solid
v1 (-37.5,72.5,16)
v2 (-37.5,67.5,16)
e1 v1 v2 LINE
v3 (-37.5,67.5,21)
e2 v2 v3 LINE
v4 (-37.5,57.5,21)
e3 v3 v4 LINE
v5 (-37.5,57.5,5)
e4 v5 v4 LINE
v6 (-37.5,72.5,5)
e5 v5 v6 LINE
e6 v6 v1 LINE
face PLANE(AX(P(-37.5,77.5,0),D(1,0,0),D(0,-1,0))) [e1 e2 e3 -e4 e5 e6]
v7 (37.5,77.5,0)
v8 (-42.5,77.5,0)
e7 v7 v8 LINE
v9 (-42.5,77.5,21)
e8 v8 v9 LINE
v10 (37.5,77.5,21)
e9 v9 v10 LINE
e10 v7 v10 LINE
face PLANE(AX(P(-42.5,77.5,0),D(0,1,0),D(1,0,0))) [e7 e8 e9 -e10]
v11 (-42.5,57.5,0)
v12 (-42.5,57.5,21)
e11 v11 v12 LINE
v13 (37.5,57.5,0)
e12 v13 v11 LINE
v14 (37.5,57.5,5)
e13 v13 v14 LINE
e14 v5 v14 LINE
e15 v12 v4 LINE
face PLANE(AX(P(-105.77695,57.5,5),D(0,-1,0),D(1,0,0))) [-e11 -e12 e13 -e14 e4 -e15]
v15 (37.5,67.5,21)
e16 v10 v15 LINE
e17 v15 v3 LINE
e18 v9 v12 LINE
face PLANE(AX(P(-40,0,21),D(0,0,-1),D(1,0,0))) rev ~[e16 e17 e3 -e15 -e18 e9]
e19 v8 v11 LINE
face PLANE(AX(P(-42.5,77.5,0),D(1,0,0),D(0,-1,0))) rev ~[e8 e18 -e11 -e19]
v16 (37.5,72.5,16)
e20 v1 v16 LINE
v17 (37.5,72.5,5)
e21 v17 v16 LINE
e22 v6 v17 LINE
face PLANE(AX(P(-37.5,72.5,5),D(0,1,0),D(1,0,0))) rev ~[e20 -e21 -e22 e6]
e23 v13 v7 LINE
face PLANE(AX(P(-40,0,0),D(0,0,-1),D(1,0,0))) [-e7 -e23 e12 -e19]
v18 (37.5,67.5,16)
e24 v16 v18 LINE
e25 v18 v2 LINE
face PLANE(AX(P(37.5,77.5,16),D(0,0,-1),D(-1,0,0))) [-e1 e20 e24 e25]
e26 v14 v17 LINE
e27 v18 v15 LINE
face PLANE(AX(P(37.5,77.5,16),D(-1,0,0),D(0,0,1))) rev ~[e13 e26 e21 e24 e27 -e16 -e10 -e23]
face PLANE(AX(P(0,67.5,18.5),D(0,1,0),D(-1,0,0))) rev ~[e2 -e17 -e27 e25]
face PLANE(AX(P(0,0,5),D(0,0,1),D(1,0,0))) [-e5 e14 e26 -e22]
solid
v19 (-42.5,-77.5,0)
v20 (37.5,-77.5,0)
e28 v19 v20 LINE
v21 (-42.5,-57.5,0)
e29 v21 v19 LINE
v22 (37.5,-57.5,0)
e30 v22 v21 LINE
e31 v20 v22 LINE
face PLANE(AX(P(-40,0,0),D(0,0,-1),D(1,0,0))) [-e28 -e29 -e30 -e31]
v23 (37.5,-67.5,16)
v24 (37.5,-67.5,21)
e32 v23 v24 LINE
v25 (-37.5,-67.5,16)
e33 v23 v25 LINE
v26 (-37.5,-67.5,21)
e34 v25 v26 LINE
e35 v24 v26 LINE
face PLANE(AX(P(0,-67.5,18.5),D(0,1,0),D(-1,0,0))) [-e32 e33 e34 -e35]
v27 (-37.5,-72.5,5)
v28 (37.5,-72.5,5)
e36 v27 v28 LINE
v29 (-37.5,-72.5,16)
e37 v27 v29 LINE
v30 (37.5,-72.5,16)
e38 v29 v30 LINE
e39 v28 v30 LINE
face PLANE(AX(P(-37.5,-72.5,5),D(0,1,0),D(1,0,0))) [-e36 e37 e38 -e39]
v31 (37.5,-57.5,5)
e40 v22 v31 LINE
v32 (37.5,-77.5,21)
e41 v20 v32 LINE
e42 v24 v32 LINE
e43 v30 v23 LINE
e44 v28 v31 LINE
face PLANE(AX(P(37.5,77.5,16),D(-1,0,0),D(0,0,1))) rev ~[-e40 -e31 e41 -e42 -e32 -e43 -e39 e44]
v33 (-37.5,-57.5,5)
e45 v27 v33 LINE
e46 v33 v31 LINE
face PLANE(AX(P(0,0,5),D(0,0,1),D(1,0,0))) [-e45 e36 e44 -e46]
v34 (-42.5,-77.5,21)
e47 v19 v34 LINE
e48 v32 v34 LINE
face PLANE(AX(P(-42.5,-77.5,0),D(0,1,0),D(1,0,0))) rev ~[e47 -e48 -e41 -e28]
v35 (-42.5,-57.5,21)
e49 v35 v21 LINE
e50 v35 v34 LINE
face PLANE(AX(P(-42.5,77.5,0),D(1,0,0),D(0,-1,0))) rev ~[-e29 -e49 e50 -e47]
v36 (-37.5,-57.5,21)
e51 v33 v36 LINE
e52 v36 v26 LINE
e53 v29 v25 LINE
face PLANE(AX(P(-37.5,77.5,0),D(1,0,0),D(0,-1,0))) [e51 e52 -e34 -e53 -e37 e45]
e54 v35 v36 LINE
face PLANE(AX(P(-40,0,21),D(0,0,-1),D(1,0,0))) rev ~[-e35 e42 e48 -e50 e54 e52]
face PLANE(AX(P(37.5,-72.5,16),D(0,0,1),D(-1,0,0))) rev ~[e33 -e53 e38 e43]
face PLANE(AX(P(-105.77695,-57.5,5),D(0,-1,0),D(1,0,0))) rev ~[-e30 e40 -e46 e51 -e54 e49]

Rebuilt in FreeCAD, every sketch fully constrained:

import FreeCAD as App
import Part
import Sketcher

V = App.Vector
Q = App.Units.Quantity

doc = App.newDocument("Part")
params = doc.addObject("Spreadsheet::Sheet", "Params")
for row, (alias, value) in enumerate([
    ("sketch1_width", "75 mm"),
    ("sketch1_height", "155 mm"),
    ("pad1_length", "5 mm"),
    ("sketch2_width", "75 mm"),
    ("sketch2_height", "5 mm"),
    ("pad2_length", "11 mm"),
    ("sketch3_width", "75 mm"),
    ("sketch3_height", "5 mm"),
    ("pad3_length", "5 mm"),
    ("sketch4_width", "75 mm"),
    ("sketch4_height", "5 mm"),
    ("pad4_length", "5 mm"),
    ("sketch5_width", "75 mm"),
    ("sketch5_height", "5 mm"),
    ("pad5_length", "11 mm"),
    ("sketch6_width", "75 mm"),
    ("sketch6_height", "5 mm"),
    ("pad6_length", "10 mm"),
    ("sketch7_width", "5 mm"),
    ("sketch7_height", "155 mm"),
    ("pad7_length", "21 mm"),
    ("sketch8_height", "115 mm"),
    ("sketch9_height", "115 mm"),
    ("pocket2_length", "25 mm"),
], start=1):
    params.set(f"A{row}", alias)
    params.set(f"B{row}", "=" + value)
    params.setAlias(f"B{row}", alias)

body = doc.addObject("PartDesign::Body", "Body")

sketch1 = body.newObject("Sketcher::SketchObject", "Sketch")
sketch1.AttachmentSupport = (doc.getObject("XY_Plane"), [""])
sketch1.MapMode = "FlatFace"
sketch1.addGeometry(Part.LineSegment(V(-38, 78, 0), V(-38, -78, 0)), False)
sketch1.addGeometry(Part.LineSegment(V(-38, -78, 0), V(38, -78, 0)), False)
sketch1.addGeometry(Part.LineSegment(V(38, -78, 0), V(38, 78, 0)), False)
sketch1.addGeometry(Part.LineSegment(V(38, 78, 0), V(-38, 78, 0)), False)
sketch1.addConstraint(Sketcher.Constraint("Coincident", 0, 2, 1, 1))
sketch1.addConstraint(Sketcher.Constraint("Coincident", 1, 2, 2, 1))
sketch1.addConstraint(Sketcher.Constraint("Coincident", 2, 2, 3, 1))
sketch1.addConstraint(Sketcher.Constraint("Coincident", 3, 2, 0, 1))
sketch1.addConstraint(Sketcher.Constraint("Vertical", 0))
sketch1.addConstraint(Sketcher.Constraint("Horizontal", 1))
sketch1.addConstraint(Sketcher.Constraint("Vertical", 2))
sketch1.addConstraint(Sketcher.Constraint("Horizontal", 3))
sketch1.addConstraint(Sketcher.Constraint("Symmetric", 0, 2, 2, 2, -1, 1))
sketch1.addConstraint(Sketcher.Constraint("DistanceX", 1, 1, 1, 2, Q("75 mm")))
sketch1.addConstraint(Sketcher.Constraint("DistanceY", 0, 2, 0, 1, Q("155 mm")))
sketch1.setExpression("Constraints[9]", "Params.sketch1_width")
sketch1.setExpression("Constraints[10]", "Params.sketch1_height")
pad1 = body.newObject("PartDesign::Pad", "Pad")
pad1.Profile = sketch1
pad1.setExpression("Length", "Params.pad1_length")

sketch2 = body.newObject("Sketcher::SketchObject", "Sketch001")
sketch2.AttachmentSupport = (doc.getObject("XY_Plane"), [""])
sketch2.MapMode = "FlatFace"
sketch2.AttachmentOffset = App.Placement(V(0, 0, 5), App.Rotation())
sketch2.addGeometry(Part.LineSegment(V(-38, -72, 0), V(-38, -78, 0)), False)
sketch2.addGeometry(Part.LineSegment(V(-38, -78, 0), V(38, -78, 0)), False)
sketch2.addGeometry(Part.LineSegment(V(38, -78, 0), V(38, -72, 0)), False)
sketch2.addGeometry(Part.LineSegment(V(38, -72, 0), V(-38, -72, 0)), False)
sketch2.addConstraint(Sketcher.Constraint("Coincident", 0, 2, 1, 1))
sketch2.addConstraint(Sketcher.Constraint("Coincident", 1, 2, 2, 1))
sketch2.addConstraint(Sketcher.Constraint("Coincident", 2, 2, 3, 1))
sketch2.addConstraint(Sketcher.Constraint("Coincident", 3, 2, 0, 1))
sketch2.addConstraint(Sketcher.Constraint("Vertical", 0))
sketch2.addConstraint(Sketcher.Constraint("Horizontal", 1))
sketch2.addConstraint(Sketcher.Constraint("Vertical", 2))
sketch2.addConstraint(Sketcher.Constraint("Horizontal", 3))
sketch2.addConstraint(Sketcher.Constraint("DistanceX", 1, 1, 1, 2, Q("75 mm")))
sketch2.addConstraint(Sketcher.Constraint("DistanceY", 0, 2, 0, 1, Q("5 mm")))
sketch2.addConstraint(Sketcher.Constraint("DistanceX", 0, 2, -1, 1, Q("37.5 mm")))
sketch2.addConstraint(Sketcher.Constraint("DistanceY", 0, 2, -1, 1, Q("77.5 mm")))
sketch2.setExpression("Constraints[8]", "Params.sketch2_width")
sketch2.setExpression("Constraints[9]", "Params.sketch2_height")
pad2 = body.newObject("PartDesign::Pad", "Pad001")
pad2.Profile = sketch2
pad2.setExpression("Length", "Params.pad2_length")
body2 = doc.addObject("PartDesign::Body", "Body001")

sketch3 = body2.newObject("Sketcher::SketchObject", "Sketch002")
sketch3.AttachmentSupport = (doc.getObject("XZ_Plane001"), [""])
sketch3.MapMode = "FlatFace"
sketch3.AttachmentOffset = App.Placement(V(0, 0, 72.5), App.Rotation())
sketch3.addGeometry(Part.LineSegment(V(38, 21, 0), V(38, 16, 0)), False)
sketch3.addGeometry(Part.LineSegment(V(38, 16, 0), V(-38, 16, 0)), False)
sketch3.addGeometry(Part.LineSegment(V(-38, 16, 0), V(-38, 21, 0)), False)
sketch3.addGeometry(Part.LineSegment(V(-38, 21, 0), V(38, 21, 0)), False)
sketch3.addConstraint(Sketcher.Constraint("Coincident", 0, 2, 1, 1))
sketch3.addConstraint(Sketcher.Constraint("Coincident", 1, 2, 2, 1))
sketch3.addConstraint(Sketcher.Constraint("Coincident", 2, 2, 3, 1))
sketch3.addConstraint(Sketcher.Constraint("Coincident", 3, 2, 0, 1))
sketch3.addConstraint(Sketcher.Constraint("Vertical", 0))
sketch3.addConstraint(Sketcher.Constraint("Horizontal", 1))
sketch3.addConstraint(Sketcher.Constraint("Vertical", 2))
sketch3.addConstraint(Sketcher.Constraint("Horizontal", 3))
sketch3.addConstraint(Sketcher.Constraint("DistanceX", 1, 2, 1, 1, Q("75 mm")))
sketch3.addConstraint(Sketcher.Constraint("DistanceY", 0, 2, 0, 1, Q("5 mm")))
sketch3.addConstraint(Sketcher.Constraint("DistanceY", -1, 1, 0, 2, Q("16 mm")))
sketch3.addConstraint(Sketcher.Constraint("DistanceX", -1, 1, 0, 2, Q("37.5 mm")))
sketch3.setExpression("Constraints[8]", "Params.sketch3_width")
sketch3.setExpression("Constraints[9]", "Params.sketch3_height")
pad3 = body2.newObject("PartDesign::Pad", "Pad002")
pad3.Profile = sketch3
pad3.setExpression("Length", "Params.pad3_length")
pad3.Reversed = True
body3 = doc.addObject("PartDesign::Body", "Body002")
body3.AllowCompound = True

sketch4 = body3.newObject("Sketcher::SketchObject", "Sketch003")
sketch4.AttachmentSupport = (doc.getObject("XZ_Plane002"), [""])
sketch4.MapMode = "FlatFace"
sketch4.AttachmentOffset = App.Placement(V(0, 0, 72.5), App.Rotation())
sketch4.addGeometry(Part.LineSegment(V(38, 16, 0), V(38, 21, 0)), False)
sketch4.addGeometry(Part.LineSegment(V(38, 21, 0), V(-38, 21, 0)), False)
sketch4.addGeometry(Part.LineSegment(V(-38, 21, 0), V(-38, 16, 0)), False)
sketch4.addGeometry(Part.LineSegment(V(-38, 16, 0), V(38, 16, 0)), False)
sketch4.addConstraint(Sketcher.Constraint("Coincident", 0, 2, 1, 1))
sketch4.addConstraint(Sketcher.Constraint("Coincident", 1, 2, 2, 1))
sketch4.addConstraint(Sketcher.Constraint("Coincident", 2, 2, 3, 1))
sketch4.addConstraint(Sketcher.Constraint("Coincident", 3, 2, 0, 1))
sketch4.addConstraint(Sketcher.Constraint("Vertical", 0))
sketch4.addConstraint(Sketcher.Constraint("Horizontal", 1))
sketch4.addConstraint(Sketcher.Constraint("Vertical", 2))
sketch4.addConstraint(Sketcher.Constraint("Horizontal", 3))
sketch4.addConstraint(Sketcher.Constraint("DistanceX", 1, 2, 1, 1, Q("75 mm")))
sketch4.addConstraint(Sketcher.Constraint("DistanceY", 0, 1, 0, 2, Q("5 mm")))
sketch4.addConstraint(Sketcher.Constraint("DistanceY", -1, 1, 0, 2, Q("21 mm")))
sketch4.addConstraint(Sketcher.Constraint("DistanceX", -1, 1, 0, 2, Q("37.5 mm")))
sketch4.setExpression("Constraints[8]", "Params.sketch4_width")
sketch4.setExpression("Constraints[9]", "Params.sketch4_height")
pad4 = body3.newObject("PartDesign::Pad", "Pad003")
pad4.Profile = sketch4
pad4.setExpression("Length", "Params.pad4_length")
doc.recompute()

boolean = body3.newObject("PartDesign::Boolean", "Boolean")
boolean.Type = "Fuse"
boolean.addObjects([body2])
doc.recompute()

boolean2 = body3.newObject("PartDesign::Boolean", "Boolean001")
boolean2.Type = "Fuse"
boolean2.addObjects([body])

sketch5 = body3.newObject("Sketcher::SketchObject", "Sketch004")
sketch5.AttachmentSupport = (doc.getObject("XY_Plane002"), [""])
sketch5.MapMode = "FlatFace"
sketch5.AttachmentOffset = App.Placement(V(0, 0, 5), App.Rotation())
sketch5.addGeometry(Part.LineSegment(V(-38, 78, 0), V(-38, 72, 0)), False)
sketch5.addGeometry(Part.LineSegment(V(-38, 72, 0), V(38, 72, 0)), False)
sketch5.addGeometry(Part.LineSegment(V(38, 72, 0), V(38, 78, 0)), False)
sketch5.addGeometry(Part.LineSegment(V(38, 78, 0), V(-38, 78, 0)), False)
sketch5.addConstraint(Sketcher.Constraint("Coincident", 0, 2, 1, 1))
sketch5.addConstraint(Sketcher.Constraint("Coincident", 1, 2, 2, 1))
sketch5.addConstraint(Sketcher.Constraint("Coincident", 2, 2, 3, 1))
sketch5.addConstraint(Sketcher.Constraint("Coincident", 3, 2, 0, 1))
sketch5.addConstraint(Sketcher.Constraint("Vertical", 0))
sketch5.addConstraint(Sketcher.Constraint("Horizontal", 1))
sketch5.addConstraint(Sketcher.Constraint("Vertical", 2))
sketch5.addConstraint(Sketcher.Constraint("Horizontal", 3))
sketch5.addConstraint(Sketcher.Constraint("DistanceX", 1, 1, 1, 2, Q("75 mm")))
sketch5.addConstraint(Sketcher.Constraint("DistanceY", 0, 2, 0, 1, Q("5 mm")))
sketch5.addConstraint(Sketcher.Constraint("DistanceX", 0, 2, -1, 1, Q("37.5 mm")))
sketch5.addConstraint(Sketcher.Constraint("DistanceY", -1, 1, 0, 2, Q("72.5 mm")))
sketch5.setExpression("Constraints[8]", "Params.sketch5_width")
sketch5.setExpression("Constraints[9]", "Params.sketch5_height")
pad5 = body3.newObject("PartDesign::Pad", "Pad004")
pad5.Profile = sketch5
pad5.setExpression("Length", "Params.pad5_length")

sketch6 = body3.newObject("Sketcher::SketchObject", "Sketch005")
sketch6.AttachmentSupport = (doc.getObject("XZ_Plane002"), [""])
sketch6.MapMode = "FlatFace"
sketch6.AttachmentOffset = App.Placement(V(0, 0, -77.5), App.Rotation())
sketch6.addGeometry(Part.LineSegment(V(38, 21, 0), V(38, 16, 0)), False)
sketch6.addGeometry(Part.LineSegment(V(38, 16, 0), V(-38, 16, 0)), False)
sketch6.addGeometry(Part.LineSegment(V(-38, 16, 0), V(-38, 21, 0)), False)
sketch6.addGeometry(Part.LineSegment(V(-38, 21, 0), V(38, 21, 0)), False)
sketch6.addConstraint(Sketcher.Constraint("Coincident", 0, 2, 1, 1))
sketch6.addConstraint(Sketcher.Constraint("Coincident", 1, 2, 2, 1))
sketch6.addConstraint(Sketcher.Constraint("Coincident", 2, 2, 3, 1))
sketch6.addConstraint(Sketcher.Constraint("Coincident", 3, 2, 0, 1))
sketch6.addConstraint(Sketcher.Constraint("Vertical", 0))
sketch6.addConstraint(Sketcher.Constraint("Horizontal", 1))
sketch6.addConstraint(Sketcher.Constraint("Vertical", 2))
sketch6.addConstraint(Sketcher.Constraint("Horizontal", 3))
sketch6.addConstraint(Sketcher.Constraint("DistanceX", 1, 2, 1, 1, Q("75 mm")))
sketch6.addConstraint(Sketcher.Constraint("DistanceY", 0, 2, 0, 1, Q("5 mm")))
sketch6.addConstraint(Sketcher.Constraint("DistanceY", -1, 1, 0, 2, Q("16 mm")))
sketch6.addConstraint(Sketcher.Constraint("DistanceX", -1, 1, 0, 2, Q("37.5 mm")))
sketch6.setExpression("Constraints[8]", "Params.sketch6_width")
sketch6.setExpression("Constraints[9]", "Params.sketch6_height")
pad6 = body3.newObject("PartDesign::Pad", "Pad005")
pad6.Profile = sketch6
pad6.setExpression("Length", "Params.pad6_length")

sketch7 = body3.newObject("Sketcher::SketchObject", "Sketch006")
sketch7.AttachmentSupport = (doc.getObject("XY_Plane002"), [""])
sketch7.MapMode = "FlatFace"
sketch7.addGeometry(Part.LineSegment(V(-42, -78, 0), V(-42, 78, 0)), False)
sketch7.addGeometry(Part.LineSegment(V(-42, 78, 0), V(-38, 78, 0)), False)
sketch7.addGeometry(Part.LineSegment(V(-38, 78, 0), V(-38, -78, 0)), False)
sketch7.addGeometry(Part.LineSegment(V(-38, -78, 0), V(-42, -78, 0)), False)
sketch7.addConstraint(Sketcher.Constraint("Coincident", 0, 2, 1, 1))
sketch7.addConstraint(Sketcher.Constraint("Coincident", 1, 2, 2, 1))
sketch7.addConstraint(Sketcher.Constraint("Coincident", 2, 2, 3, 1))
sketch7.addConstraint(Sketcher.Constraint("Coincident", 3, 2, 0, 1))
sketch7.addConstraint(Sketcher.Constraint("Vertical", 0))
sketch7.addConstraint(Sketcher.Constraint("Horizontal", 1))
sketch7.addConstraint(Sketcher.Constraint("Vertical", 2))
sketch7.addConstraint(Sketcher.Constraint("Horizontal", 3))
sketch7.addConstraint(Sketcher.Constraint("DistanceX", 1, 1, 1, 2, Q("5 mm")))
sketch7.addConstraint(Sketcher.Constraint("DistanceY", 0, 1, 0, 2, Q("155 mm")))
sketch7.addConstraint(Sketcher.Constraint("DistanceX", 0, 2, -1, 1, Q("42.5 mm")))
sketch7.addConstraint(Sketcher.Constraint("DistanceY", -1, 1, 0, 2, Q("77.5 mm")))
sketch7.setExpression("Constraints[8]", "Params.sketch7_width")
sketch7.setExpression("Constraints[9]", "Params.sketch7_height")
pad7 = body3.newObject("PartDesign::Pad", "Pad006")
pad7.Profile = sketch7
pad7.setExpression("Length", "Params.pad7_length")

sketch8 = body3.newObject("Sketcher::SketchObject", "Sketch007")
sketch8.AttachmentSupport = (doc.getObject("XY_Plane002"), [""])
sketch8.MapMode = "FlatFace"
sketch8.AttachmentOffset = App.Placement(V(0, 0, 5), App.Rotation())
sketch8.addGeometry(Part.LineSegment(V(-106, 58, 0), V(-106, -58, 0)), False)
sketch8.addGeometry(Part.LineSegment(V(-106, -58, 0), V(106, -58, 0)), False)
sketch8.addGeometry(Part.LineSegment(V(106, -58, 0), V(106, 58, 0)), False)
sketch8.addGeometry(Part.LineSegment(V(106, 58, 0), V(-106, 58, 0)), False)
sketch8.addConstraint(Sketcher.Constraint("Coincident", 0, 2, 1, 1))
sketch8.addConstraint(Sketcher.Constraint("Coincident", 1, 2, 2, 1))
sketch8.addConstraint(Sketcher.Constraint("Coincident", 2, 2, 3, 1))
sketch8.addConstraint(Sketcher.Constraint("Coincident", 3, 2, 0, 1))
sketch8.addConstraint(Sketcher.Constraint("Vertical", 0))
sketch8.addConstraint(Sketcher.Constraint("Horizontal", 1))
sketch8.addConstraint(Sketcher.Constraint("Vertical", 2))
sketch8.addConstraint(Sketcher.Constraint("Horizontal", 3))
sketch8.addConstraint(Sketcher.Constraint("Symmetric", 0, 2, 2, 2, -1, 1))
sketch8.addConstraint(Sketcher.Constraint("DistanceY", 0, 2, 0, 1, Q("115 mm")))
sketch8.addConstraint(Sketcher.Constraint("DistanceX", 1, 1, 1, 2, Q("211.5539 mm")))
sketch8.setExpression("Constraints[9]", "Params.sketch8_height")
pocket1 = body3.newObject("PartDesign::Pocket", "Pocket")
pocket1.Profile = sketch8
pocket1.Type = "ThroughAll"

sketch9 = body3.newObject("Sketcher::SketchObject", "Sketch008")
sketch9.AttachmentSupport = (doc.getObject("XY_Plane002"), [""])
sketch9.MapMode = "FlatFace"
sketch9.AttachmentOffset = App.Placement(V(0, 0, 5), App.Rotation())
sketch9.addGeometry(Part.LineSegment(V(-106, 58, 0), V(-106, -58, 0)), False)
sketch9.addGeometry(Part.LineSegment(V(-106, -58, 0), V(106, -58, 0)), False)
sketch9.addGeometry(Part.LineSegment(V(106, -58, 0), V(106, 58, 0)), False)
sketch9.addGeometry(Part.LineSegment(V(106, 58, 0), V(-106, 58, 0)), False)
sketch9.addConstraint(Sketcher.Constraint("Coincident", 0, 2, 1, 1))
sketch9.addConstraint(Sketcher.Constraint("Coincident", 1, 2, 2, 1))
sketch9.addConstraint(Sketcher.Constraint("Coincident", 2, 2, 3, 1))
sketch9.addConstraint(Sketcher.Constraint("Coincident", 3, 2, 0, 1))
sketch9.addConstraint(Sketcher.Constraint("Vertical", 0))
sketch9.addConstraint(Sketcher.Constraint("Horizontal", 1))
sketch9.addConstraint(Sketcher.Constraint("Vertical", 2))
sketch9.addConstraint(Sketcher.Constraint("Horizontal", 3))
sketch9.addConstraint(Sketcher.Constraint("Symmetric", 0, 2, 2, 2, -1, 1))
sketch9.addConstraint(Sketcher.Constraint("DistanceY", 0, 2, 0, 1, Q("115 mm")))
sketch9.addConstraint(Sketcher.Constraint("DistanceX", 1, 1, 1, 2, Q("211.5539 mm")))
sketch9.setExpression("Constraints[9]", "Params.sketch9_height")
pocket2 = body3.newObject("PartDesign::Pocket", "Pocket001")
pocket2.Profile = sketch9
pocket2.setExpression("Length", "Params.pocket2_length")
pocket2.Reversed = True

doc.recompute()
